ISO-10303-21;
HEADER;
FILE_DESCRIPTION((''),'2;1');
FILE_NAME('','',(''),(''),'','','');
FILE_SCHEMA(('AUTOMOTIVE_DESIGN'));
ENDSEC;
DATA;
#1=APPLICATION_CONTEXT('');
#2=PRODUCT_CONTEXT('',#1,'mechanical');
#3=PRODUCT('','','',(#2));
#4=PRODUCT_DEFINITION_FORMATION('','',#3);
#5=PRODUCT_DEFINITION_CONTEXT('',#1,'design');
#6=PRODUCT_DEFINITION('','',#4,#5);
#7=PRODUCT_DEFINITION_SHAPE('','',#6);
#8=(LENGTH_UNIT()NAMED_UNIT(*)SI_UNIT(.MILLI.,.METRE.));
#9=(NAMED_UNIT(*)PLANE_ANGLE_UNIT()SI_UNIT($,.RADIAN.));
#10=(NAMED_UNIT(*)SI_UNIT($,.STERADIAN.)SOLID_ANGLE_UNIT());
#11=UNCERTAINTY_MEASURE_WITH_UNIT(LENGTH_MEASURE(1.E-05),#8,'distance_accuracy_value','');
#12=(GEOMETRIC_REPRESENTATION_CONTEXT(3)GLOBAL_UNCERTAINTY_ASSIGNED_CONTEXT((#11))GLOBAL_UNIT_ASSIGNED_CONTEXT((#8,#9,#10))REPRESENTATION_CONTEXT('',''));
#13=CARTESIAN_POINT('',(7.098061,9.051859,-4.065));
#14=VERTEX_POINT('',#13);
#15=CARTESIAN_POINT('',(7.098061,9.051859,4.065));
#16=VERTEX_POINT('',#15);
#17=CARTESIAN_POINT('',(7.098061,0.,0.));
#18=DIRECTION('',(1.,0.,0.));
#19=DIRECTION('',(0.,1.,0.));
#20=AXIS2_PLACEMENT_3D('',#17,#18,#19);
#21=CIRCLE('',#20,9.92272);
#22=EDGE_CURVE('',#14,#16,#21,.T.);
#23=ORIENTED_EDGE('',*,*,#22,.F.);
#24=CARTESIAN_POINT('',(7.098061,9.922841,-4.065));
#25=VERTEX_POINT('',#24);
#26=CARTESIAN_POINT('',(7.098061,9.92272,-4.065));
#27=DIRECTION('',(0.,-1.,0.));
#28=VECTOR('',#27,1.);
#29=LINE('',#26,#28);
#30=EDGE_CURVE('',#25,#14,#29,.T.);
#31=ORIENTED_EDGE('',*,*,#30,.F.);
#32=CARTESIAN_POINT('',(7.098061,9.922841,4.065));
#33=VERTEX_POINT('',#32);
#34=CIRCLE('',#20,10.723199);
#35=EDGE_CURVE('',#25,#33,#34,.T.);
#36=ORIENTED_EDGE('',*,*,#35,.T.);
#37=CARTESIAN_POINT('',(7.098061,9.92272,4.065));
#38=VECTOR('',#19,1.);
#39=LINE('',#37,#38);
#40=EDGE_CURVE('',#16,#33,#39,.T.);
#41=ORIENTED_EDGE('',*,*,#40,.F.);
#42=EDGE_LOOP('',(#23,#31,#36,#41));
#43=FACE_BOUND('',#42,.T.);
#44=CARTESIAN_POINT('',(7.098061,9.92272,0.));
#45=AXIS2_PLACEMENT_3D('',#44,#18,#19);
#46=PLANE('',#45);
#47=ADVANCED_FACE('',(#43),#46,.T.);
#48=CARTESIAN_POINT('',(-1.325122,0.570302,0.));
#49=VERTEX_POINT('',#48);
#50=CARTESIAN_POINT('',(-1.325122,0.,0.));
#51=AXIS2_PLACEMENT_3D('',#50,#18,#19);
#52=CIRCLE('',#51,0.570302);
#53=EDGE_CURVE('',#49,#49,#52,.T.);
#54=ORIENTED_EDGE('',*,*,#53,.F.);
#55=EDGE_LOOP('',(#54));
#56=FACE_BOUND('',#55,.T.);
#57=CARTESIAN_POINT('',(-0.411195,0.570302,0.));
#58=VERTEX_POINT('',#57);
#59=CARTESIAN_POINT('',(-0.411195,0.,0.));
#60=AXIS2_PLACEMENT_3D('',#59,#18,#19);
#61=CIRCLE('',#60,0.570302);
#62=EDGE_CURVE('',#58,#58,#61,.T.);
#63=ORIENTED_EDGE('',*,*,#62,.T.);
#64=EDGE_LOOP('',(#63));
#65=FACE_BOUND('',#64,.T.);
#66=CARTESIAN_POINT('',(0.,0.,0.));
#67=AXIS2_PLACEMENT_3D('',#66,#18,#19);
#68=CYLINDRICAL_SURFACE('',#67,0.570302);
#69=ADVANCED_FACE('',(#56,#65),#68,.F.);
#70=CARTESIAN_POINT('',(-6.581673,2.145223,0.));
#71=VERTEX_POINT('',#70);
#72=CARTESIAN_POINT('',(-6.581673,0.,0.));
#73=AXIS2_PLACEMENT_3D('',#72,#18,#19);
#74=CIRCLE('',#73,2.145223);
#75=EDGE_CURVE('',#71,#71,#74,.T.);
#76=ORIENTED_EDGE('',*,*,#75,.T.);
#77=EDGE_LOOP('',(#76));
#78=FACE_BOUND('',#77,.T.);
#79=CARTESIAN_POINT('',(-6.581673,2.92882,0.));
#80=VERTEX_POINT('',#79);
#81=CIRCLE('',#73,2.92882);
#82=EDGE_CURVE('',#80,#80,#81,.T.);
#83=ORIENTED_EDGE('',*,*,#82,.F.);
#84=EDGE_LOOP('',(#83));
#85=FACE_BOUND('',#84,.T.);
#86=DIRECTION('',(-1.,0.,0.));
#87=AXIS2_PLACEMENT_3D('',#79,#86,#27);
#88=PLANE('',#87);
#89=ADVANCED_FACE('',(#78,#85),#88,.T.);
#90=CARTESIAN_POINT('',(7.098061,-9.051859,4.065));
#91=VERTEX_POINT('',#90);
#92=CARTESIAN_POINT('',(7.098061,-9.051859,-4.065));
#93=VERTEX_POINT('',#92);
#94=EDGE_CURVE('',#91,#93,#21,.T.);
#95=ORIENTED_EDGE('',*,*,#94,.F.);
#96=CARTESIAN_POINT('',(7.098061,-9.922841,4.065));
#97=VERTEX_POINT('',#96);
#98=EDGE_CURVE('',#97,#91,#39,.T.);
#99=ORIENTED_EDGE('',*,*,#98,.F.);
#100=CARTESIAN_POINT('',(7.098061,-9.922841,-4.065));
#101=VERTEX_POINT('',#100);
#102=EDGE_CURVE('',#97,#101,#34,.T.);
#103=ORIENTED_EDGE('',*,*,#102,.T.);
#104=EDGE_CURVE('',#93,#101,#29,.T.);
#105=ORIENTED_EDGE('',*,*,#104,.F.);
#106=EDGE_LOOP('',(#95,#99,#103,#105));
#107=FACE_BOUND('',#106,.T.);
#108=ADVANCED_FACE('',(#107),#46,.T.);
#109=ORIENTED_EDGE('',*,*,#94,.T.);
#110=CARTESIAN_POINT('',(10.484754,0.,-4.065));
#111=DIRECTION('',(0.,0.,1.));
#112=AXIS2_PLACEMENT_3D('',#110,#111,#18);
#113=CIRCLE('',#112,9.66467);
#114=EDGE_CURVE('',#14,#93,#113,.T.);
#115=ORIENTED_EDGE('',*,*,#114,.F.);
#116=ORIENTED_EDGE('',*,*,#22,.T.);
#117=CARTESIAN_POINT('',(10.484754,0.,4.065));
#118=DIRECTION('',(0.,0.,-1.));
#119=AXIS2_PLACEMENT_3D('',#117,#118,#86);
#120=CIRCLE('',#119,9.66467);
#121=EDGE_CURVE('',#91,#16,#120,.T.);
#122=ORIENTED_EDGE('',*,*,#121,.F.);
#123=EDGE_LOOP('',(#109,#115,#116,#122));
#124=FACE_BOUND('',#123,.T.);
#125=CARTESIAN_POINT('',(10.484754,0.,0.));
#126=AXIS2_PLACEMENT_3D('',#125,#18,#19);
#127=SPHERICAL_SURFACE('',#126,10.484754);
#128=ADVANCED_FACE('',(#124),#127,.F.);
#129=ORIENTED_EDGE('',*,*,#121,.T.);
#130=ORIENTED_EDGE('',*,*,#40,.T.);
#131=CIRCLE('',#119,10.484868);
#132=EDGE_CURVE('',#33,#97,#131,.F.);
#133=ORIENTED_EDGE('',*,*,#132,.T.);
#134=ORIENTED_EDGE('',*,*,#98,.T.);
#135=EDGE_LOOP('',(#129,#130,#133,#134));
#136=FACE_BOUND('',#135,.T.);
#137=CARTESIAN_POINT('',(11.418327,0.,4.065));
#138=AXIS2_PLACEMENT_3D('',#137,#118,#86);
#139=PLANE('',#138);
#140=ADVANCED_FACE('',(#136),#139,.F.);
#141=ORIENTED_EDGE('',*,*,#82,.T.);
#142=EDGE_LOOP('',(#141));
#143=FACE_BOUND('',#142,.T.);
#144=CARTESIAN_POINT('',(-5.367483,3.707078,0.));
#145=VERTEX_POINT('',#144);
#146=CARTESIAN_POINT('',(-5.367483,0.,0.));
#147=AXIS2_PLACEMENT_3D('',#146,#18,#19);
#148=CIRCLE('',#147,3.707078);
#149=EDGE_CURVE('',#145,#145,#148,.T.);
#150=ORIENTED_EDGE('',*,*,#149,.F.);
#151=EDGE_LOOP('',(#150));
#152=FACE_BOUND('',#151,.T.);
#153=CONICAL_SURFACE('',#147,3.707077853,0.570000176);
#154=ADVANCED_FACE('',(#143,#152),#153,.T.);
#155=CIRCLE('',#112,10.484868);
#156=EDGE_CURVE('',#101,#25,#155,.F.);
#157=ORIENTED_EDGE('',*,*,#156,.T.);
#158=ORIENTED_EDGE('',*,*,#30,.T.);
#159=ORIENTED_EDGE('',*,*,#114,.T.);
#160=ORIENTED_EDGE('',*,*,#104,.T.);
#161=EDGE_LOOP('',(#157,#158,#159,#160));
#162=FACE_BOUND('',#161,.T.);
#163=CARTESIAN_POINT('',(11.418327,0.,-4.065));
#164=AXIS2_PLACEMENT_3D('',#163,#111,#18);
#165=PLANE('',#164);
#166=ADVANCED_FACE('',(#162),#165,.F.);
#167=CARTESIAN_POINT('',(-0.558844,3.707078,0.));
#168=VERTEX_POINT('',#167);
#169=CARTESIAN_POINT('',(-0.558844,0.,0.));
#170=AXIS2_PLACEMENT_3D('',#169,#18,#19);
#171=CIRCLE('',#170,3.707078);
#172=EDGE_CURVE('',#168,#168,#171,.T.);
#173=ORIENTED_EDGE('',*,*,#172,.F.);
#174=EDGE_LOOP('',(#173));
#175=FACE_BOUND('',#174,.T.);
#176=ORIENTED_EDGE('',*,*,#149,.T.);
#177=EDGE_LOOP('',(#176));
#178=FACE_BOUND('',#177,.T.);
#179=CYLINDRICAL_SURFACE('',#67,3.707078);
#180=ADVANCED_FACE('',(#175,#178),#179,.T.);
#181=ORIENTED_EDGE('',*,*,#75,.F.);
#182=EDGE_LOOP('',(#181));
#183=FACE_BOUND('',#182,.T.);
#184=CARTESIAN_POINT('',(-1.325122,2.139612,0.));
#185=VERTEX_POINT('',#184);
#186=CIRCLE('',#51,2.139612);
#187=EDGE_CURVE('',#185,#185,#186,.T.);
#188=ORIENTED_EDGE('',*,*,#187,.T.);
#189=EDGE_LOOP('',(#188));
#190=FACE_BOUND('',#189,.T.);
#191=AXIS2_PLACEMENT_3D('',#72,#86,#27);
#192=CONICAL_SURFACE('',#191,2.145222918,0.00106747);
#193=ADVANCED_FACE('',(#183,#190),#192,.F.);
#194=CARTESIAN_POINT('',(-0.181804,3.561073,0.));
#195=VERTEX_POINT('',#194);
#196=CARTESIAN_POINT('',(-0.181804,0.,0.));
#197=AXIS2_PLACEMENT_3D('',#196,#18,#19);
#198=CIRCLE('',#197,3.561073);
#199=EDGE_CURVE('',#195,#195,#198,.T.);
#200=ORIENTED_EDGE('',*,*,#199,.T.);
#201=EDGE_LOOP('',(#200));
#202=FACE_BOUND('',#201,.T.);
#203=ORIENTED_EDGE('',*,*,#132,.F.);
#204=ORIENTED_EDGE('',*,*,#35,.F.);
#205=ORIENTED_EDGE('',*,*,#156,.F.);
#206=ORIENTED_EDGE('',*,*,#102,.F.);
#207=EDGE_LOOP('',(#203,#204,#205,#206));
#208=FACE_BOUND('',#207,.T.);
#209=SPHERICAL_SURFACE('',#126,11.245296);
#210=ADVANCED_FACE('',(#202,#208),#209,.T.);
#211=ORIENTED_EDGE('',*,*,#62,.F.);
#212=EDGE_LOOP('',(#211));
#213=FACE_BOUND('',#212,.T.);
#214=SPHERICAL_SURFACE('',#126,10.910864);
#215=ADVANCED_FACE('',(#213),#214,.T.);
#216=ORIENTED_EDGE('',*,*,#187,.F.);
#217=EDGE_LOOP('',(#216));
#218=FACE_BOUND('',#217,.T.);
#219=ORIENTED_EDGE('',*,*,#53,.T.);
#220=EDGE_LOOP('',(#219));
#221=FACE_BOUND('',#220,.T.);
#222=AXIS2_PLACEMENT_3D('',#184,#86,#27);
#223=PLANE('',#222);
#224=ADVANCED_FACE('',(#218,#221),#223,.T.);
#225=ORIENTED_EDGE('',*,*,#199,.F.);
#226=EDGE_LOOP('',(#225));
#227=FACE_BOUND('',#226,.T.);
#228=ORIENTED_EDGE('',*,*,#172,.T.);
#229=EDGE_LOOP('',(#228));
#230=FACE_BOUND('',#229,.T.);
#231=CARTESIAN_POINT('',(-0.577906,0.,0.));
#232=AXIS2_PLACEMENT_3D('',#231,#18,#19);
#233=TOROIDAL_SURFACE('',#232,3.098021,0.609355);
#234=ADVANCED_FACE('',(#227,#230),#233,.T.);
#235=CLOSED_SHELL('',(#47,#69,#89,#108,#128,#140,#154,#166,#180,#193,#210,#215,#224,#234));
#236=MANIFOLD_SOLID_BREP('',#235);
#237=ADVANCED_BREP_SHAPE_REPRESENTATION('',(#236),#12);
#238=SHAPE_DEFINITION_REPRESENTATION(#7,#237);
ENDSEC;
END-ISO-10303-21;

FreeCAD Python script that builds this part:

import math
import FreeCAD as App
import Part
import Sketcher

V = App.Vector
Q = App.Units.Quantity


def add_polygon(sketch, points):
    """Adds a closed chain of lines whose ends are joined by coincident constraints."""
    first, n = sketch.GeometryCount, len(points)
    for a, b in zip(points, points[1:] + points[:1]):
        sketch.addGeometry(Part.LineSegment(App.Vector(*a, 0), App.Vector(*b, 0)), False)
    for i in range(n):
        sketch.addConstraint(Sketcher.Constraint("Coincident", first + i, 2, first + (i + 1) % n, 1))

doc = App.newDocument("Part")
params = doc.addObject("Spreadsheet::Sheet", "Params")
for row, (alias, value) in enumerate([
    ("revolution_angle", "360 deg"),
    ("pocket1_length", "18 mm"),
], start=1):
    params.set(f"A{row}", alias)
    params.set(f"B{row}", "=" + value)
    params.setAlias(f"B{row}", alias)

body = doc.addObject("PartDesign::Body", "Body")

# Sketch on XY plane
sketch1 = doc.addObject("Sketcher::SketchObject", "Sketch")
body.addObject(sketch1)
sketch1.AttachmentSupport = (doc.XY_Plane, [""])
sketch1.MapMode = "FlatFace"
sketch1.addGeometry(Part.LineSegment(V(-1.33, 2.14, 0), V(-1.33, 0.57, 0)), False)
sketch1.addGeometry(Part.LineSegment(V(-1.33, 0.57, 0), V(-0.41, 0.57, 0)), False)
sketch1.addGeometry(Part.ArcOfCircle(Part.Circle(V(10.48, 0, 0), V(0, 0, 1), 10.91), math.radians(177), math.radians(180)), False)
sketch1.addGeometry(Part.LineSegment(V(-0.43, 0, 0), V(0, 0, 0)), False)
sketch1.addGeometry(Part.ArcOfCircle(Part.Circle(V(10.48, 0, 0), V(0, 0, 1), 10.48), math.radians(109), math.radians(180)), False)
sketch1.addGeometry(Part.LineSegment(V(7.1, 9.92, 0), V(7.1, 10.72, 0)), False)
sketch1.addGeometry(Part.ArcOfCircle(Part.Circle(V(10.48, 0, 0), V(0, 0, 1), 11.25), math.radians(108), math.radians(162)), False)
sketch1.addGeometry(Part.ArcOfCircle(Part.Circle(V(-0.58, 3.1, 0), V(0, 0, 1), 0.61), math.radians(49), math.radians(88)), False)
sketch1.addGeometry(Part.LineSegment(V(-0.56, 3.71, 0), V(-5.37, 3.71, 0)), False)
sketch1.addGeometry(Part.LineSegment(V(-5.37, 3.71, 0), V(-6.58, 2.93, 0)), False)
sketch1.addGeometry(Part.LineSegment(V(-6.58, 2.93, 0), V(-6.58, 2.15, 0)), False)
sketch1.addGeometry(Part.LineSegment(V(-6.58, 2.15, 0), V(-1.33, 2.14, 0)), False)
sketch1.addConstraint(Sketcher.Constraint("Coincident", 0, 2, 1, 1))
sketch1.addConstraint(Sketcher.Constraint("Coincident", 1, 2, 2, 1))
sketch1.addConstraint(Sketcher.Constraint("Coincident", 2, 2, 3, 1))
sketch1.addConstraint(Sketcher.Constraint("Coincident", 3, 2, 4, 2))
sketch1.addConstraint(Sketcher.Constraint("Coincident", 4, 1, 5, 1))
sketch1.addConstraint(Sketcher.Constraint("Coincident", 5, 2, 6, 1))
sketch1.addConstraint(Sketcher.Constraint("Coincident", 6, 2, 7, 1))
sketch1.addConstraint(Sketcher.Constraint("Coincident", 7, 2, 8, 1))
sketch1.addConstraint(Sketcher.Constraint("Coincident", 8, 2, 9, 1))
sketch1.addConstraint(Sketcher.Constraint("Coincident", 9, 2, 10, 1))
sketch1.addConstraint(Sketcher.Constraint("Coincident", 10, 2, 11, 1))
sketch1.addConstraint(Sketcher.Constraint("Coincident", 11, 2, 0, 1))
sketch1.addConstraint(Sketcher.Constraint("Vertical", 0))
sketch1.addConstraint(Sketcher.Constraint("Horizontal", 1))
sketch1.addConstraint(Sketcher.Constraint("Horizontal", 3))
sketch1.addConstraint(Sketcher.Constraint("Vertical", 5))
sketch1.addConstraint(Sketcher.Constraint("Horizontal", 8))
sketch1.addConstraint(Sketcher.Constraint("Vertical", 10))
sketch1.addConstraint(Sketcher.Constraint("Coincident", 3, 2, -1, 1))
sketch1.addConstraint(Sketcher.Constraint("Coincident", 4, 3, 2, 3))
sketch1.addConstraint(Sketcher.Constraint("Coincident", 6, 3, 2, 3))
sketch1.addConstraint(Sketcher.Constraint("PointOnObject", 2, 3, -1))
sketch1.addConstraint(Sketcher.Constraint("Radius", 2, Q("10.910864 mm")))
sketch1.addConstraint(Sketcher.Constraint("Radius", 4, Q("10.484754 mm")))
sketch1.addConstraint(Sketcher.Constraint("Radius", 6, Q("11.245296 mm")))
sketch1.addConstraint(Sketcher.Constraint("Radius", 7, Q("0.609355 mm")))
sketch1.addConstraint(Sketcher.Constraint("Distance", 9, Q("1.442201 mm")))
sketch1.addConstraint(Sketcher.Constraint("DistanceX", 8, 2, 8, 1, Q("4.808638 mm")))
sketch1.addConstraint(Sketcher.Constraint("DistanceY", 0, 2, 0, 1, Q("1.56931 mm")))
sketch1.addConstraint(Sketcher.Constraint("DistanceY", 5, 1, 5, 2, Q("0.800479 mm")))
sketch1.addConstraint(Sketcher.Constraint("DistanceY", -1, 1, 0, 2, Q("0.570302 mm")))
sketch1.addConstraint(Sketcher.Constraint("DistanceY", 7, 3, 4, 1, Q("6.824699 mm")))
sketch1.addConstraint(Sketcher.Constraint("DistanceX", 7, 3, 6, 2, Q("0.396102 mm")))
sketch1.addConstraint(Sketcher.Constraint("DistanceY", 9, 2, 7, 3, Q("0.169202 mm")))
sketch1.addConstraint(Sketcher.Constraint("DistanceY", 10, 2, 7, 3, Q("0.952798 mm")))
sketch1.addConstraint(Sketcher.Constraint("DistanceX", 1, 1, 1, 2, Q("0.913927 mm")))
sketch1.addConstraint(Sketcher.Constraint("DistanceX", 7, 2, 6, 2, Q("0.37704 mm")))
revolution = doc.addObject("PartDesign::Revolution", "Revolution")
body.addObject(revolution)
revolution.Profile = sketch1
revolution.ReferenceAxis = (sketch1, ["H_Axis"])
revolution.setExpression("Angle", "Params.revolution_angle")

# Sketch on YZ plane
sketch2 = doc.addObject("Sketcher::SketchObject", "Sketch001")
body.addObject(sketch2)
sketch2.AttachmentSupport = (doc.YZ_Plane, [""])
sketch2.MapMode = "FlatFace"
sketch2.AttachmentOffset = App.Placement(V(0, 0, -6.581673), App.Rotation())
add_polygon(sketch2, [(10, -4), (10, -12), (-11, -12), (-11, -4)])  # lines 0-3
add_polygon(sketch2, [(11, 4), (-11, 4), (-11, 13), (11, 12)])  # lines 4-7
sketch2.addConstraint(Sketcher.Constraint("Horizontal", 1))
sketch2.addConstraint(Sketcher.Constraint("Vertical", 2))
sketch2.addConstraint(Sketcher.Constraint("Horizontal", 3))
sketch2.addConstraint(Sketcher.Constraint("Horizontal", 4))
sketch2.addConstraint(Sketcher.Constraint("Vertical", 5))
sketch2.addConstraint(Sketcher.Constraint("Vertical", 7))
sketch2.addConstraint(Sketcher.Constraint("DistanceY", 2, 2, 4, 2, Q("8.13 mm")))
sketch2.addConstraint(Sketcher.Constraint("DistanceY", 7, 2, 7, 1, Q("8.083102 mm")))
sketch2.addConstraint(Sketcher.Constraint("DistanceY", 2, 2, -1, 1, Q("4.065 mm")))
sketch2.addConstraint(Sketcher.Constraint("DistanceX", 1, 2, 1, 1, Q("20.964669 mm")))
sketch2.addConstraint(Sketcher.Constraint("DistanceX", 4, 2, 4, 1, Q("21.861951 mm")))
sketch2.addConstraint(Sketcher.Constraint("DistanceX", 0, 2, 6, 2, Q("0.402302 mm")))
sketch2.addConstraint(Sketcher.Constraint("DistanceX", 3, 1, 3, 2, Q("20.777076 mm")))
sketch2.addConstraint(Sketcher.Constraint("DistanceY", 2, 1, 2, 2, Q("8.212622 mm")))
sketch2.addConstraint(Sketcher.Constraint("DistanceY", 5, 1, 5, 2, Q("8.541033 mm")))
sketch2.addConstraint(Sketcher.Constraint("DistanceX", -1, 1, 3, 2, Q("9.922841 mm")))
pocket1 = doc.addObject("PartDesign::Pocket", "Pocket")
body.addObject(pocket1)
pocket1.Profile = sketch2
pocket1.setExpression("Length", "Params.pocket1_length")
pocket1.Reversed = True

doc.recompute()
